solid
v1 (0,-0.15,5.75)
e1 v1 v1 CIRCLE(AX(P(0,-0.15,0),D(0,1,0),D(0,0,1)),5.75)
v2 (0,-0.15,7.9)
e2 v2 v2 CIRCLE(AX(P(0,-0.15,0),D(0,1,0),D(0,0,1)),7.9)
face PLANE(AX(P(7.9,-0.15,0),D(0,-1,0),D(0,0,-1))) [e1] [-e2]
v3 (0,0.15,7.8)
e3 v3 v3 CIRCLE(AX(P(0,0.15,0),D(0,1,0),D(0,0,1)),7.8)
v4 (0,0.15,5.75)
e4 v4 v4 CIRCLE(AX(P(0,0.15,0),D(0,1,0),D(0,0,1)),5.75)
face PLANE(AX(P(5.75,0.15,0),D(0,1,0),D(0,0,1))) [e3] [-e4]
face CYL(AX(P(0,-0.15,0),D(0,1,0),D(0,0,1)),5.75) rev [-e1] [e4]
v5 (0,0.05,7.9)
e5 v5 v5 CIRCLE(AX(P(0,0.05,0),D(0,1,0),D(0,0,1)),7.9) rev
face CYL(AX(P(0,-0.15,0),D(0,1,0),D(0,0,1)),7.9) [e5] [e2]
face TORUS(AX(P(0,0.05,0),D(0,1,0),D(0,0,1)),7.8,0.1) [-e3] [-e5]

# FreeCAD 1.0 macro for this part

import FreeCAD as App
import Part
import Sketcher
from FreeCAD import Vector
Q = App.Units.Quantity


def edges_at(feature, points):
    """Names of the edges that pass closest to the given points."""
    edges = feature.Shape.Edges
    near = lambda p: min(range(len(edges)), key=lambda i: edges[i].distToShape(Part.Vertex(*p))[0])
    return sorted({f"Edge{near(p) + 1}" for p in points})

doc = App.newDocument("Part")
body = doc.addObject("PartDesign::Body", "Body")

# Sketch on XY plane
sketch1 = body.newObject("Sketcher::SketchObject", "Sketch")
sketch1.AttachmentSupport = (doc.getObject("XY_Plane"), [""])
sketch1.MapMode = "FlatFace"
sketch1.addGeometry(Part.LineSegment(Vector(7.9, 0.15, 0), Vector(7.9, -0.15, 0)), False)
sketch1.addGeometry(Part.LineSegment(Vector(7.9, -0.15, 0), Vector(5.75, -0.15, 0)), False)
sketch1.addGeometry(Part.LineSegment(Vector(5.75, -0.15, 0), Vector(5.75, 0.15, 0)), False)
sketch1.addGeometry(Part.LineSegment(Vector(5.75, 0.15, 0), Vector(7.9, 0.15, 0)), False)
sketch1.addConstraint(Sketcher.Constraint("Coincident", 0, 2, 1, 1))
sketch1.addConstraint(Sketcher.Constraint("Coincident", 1, 2, 2, 1))
sketch1.addConstraint(Sketcher.Constraint("Coincident", 2, 2, 3, 1))
sketch1.addConstraint(Sketcher.Constraint("Coincident", 3, 2, 0, 1))
sketch1.addConstraint(Sketcher.Constraint("Vertical", 0))
sketch1.addConstraint(Sketcher.Constraint("Horizontal", 1))
sketch1.addConstraint(Sketcher.Constraint("Vertical", 2))
sketch1.addConstraint(Sketcher.Constraint("Horizontal", 3))
sketch1.addConstraint(Sketcher.Constraint("DistanceY", 0, 2, 0, 1, Q("0.3 mm")))
sketch1.addConstraint(Sketcher.Constraint("DistanceX", 1, 2, 1, 1, Q("2.15 mm")))
sketch1.addConstraint(Sketcher.Constraint("DistanceX", -1, 1, 0, 2, Q("7.9 mm")))
sketch1.addConstraint(Sketcher.Constraint("DistanceY", 0, 2, -1, 1, Q("0.15 mm")))
revolution = body.newObject("PartDesign::Revolution", "Revolution")
revolution.Profile = sketch1
revolution.ReferenceAxis = (sketch1, ["V_Axis"])
revolution.Angle = 360
doc.recompute()

fillet = body.newObject("PartDesign::Fillet", "Fillet")
fillet.Base = (revolution, edges_at(revolution, [(0, 0.15, -7.9)]))
fillet.Radius = 0.1

doc.recompute()
